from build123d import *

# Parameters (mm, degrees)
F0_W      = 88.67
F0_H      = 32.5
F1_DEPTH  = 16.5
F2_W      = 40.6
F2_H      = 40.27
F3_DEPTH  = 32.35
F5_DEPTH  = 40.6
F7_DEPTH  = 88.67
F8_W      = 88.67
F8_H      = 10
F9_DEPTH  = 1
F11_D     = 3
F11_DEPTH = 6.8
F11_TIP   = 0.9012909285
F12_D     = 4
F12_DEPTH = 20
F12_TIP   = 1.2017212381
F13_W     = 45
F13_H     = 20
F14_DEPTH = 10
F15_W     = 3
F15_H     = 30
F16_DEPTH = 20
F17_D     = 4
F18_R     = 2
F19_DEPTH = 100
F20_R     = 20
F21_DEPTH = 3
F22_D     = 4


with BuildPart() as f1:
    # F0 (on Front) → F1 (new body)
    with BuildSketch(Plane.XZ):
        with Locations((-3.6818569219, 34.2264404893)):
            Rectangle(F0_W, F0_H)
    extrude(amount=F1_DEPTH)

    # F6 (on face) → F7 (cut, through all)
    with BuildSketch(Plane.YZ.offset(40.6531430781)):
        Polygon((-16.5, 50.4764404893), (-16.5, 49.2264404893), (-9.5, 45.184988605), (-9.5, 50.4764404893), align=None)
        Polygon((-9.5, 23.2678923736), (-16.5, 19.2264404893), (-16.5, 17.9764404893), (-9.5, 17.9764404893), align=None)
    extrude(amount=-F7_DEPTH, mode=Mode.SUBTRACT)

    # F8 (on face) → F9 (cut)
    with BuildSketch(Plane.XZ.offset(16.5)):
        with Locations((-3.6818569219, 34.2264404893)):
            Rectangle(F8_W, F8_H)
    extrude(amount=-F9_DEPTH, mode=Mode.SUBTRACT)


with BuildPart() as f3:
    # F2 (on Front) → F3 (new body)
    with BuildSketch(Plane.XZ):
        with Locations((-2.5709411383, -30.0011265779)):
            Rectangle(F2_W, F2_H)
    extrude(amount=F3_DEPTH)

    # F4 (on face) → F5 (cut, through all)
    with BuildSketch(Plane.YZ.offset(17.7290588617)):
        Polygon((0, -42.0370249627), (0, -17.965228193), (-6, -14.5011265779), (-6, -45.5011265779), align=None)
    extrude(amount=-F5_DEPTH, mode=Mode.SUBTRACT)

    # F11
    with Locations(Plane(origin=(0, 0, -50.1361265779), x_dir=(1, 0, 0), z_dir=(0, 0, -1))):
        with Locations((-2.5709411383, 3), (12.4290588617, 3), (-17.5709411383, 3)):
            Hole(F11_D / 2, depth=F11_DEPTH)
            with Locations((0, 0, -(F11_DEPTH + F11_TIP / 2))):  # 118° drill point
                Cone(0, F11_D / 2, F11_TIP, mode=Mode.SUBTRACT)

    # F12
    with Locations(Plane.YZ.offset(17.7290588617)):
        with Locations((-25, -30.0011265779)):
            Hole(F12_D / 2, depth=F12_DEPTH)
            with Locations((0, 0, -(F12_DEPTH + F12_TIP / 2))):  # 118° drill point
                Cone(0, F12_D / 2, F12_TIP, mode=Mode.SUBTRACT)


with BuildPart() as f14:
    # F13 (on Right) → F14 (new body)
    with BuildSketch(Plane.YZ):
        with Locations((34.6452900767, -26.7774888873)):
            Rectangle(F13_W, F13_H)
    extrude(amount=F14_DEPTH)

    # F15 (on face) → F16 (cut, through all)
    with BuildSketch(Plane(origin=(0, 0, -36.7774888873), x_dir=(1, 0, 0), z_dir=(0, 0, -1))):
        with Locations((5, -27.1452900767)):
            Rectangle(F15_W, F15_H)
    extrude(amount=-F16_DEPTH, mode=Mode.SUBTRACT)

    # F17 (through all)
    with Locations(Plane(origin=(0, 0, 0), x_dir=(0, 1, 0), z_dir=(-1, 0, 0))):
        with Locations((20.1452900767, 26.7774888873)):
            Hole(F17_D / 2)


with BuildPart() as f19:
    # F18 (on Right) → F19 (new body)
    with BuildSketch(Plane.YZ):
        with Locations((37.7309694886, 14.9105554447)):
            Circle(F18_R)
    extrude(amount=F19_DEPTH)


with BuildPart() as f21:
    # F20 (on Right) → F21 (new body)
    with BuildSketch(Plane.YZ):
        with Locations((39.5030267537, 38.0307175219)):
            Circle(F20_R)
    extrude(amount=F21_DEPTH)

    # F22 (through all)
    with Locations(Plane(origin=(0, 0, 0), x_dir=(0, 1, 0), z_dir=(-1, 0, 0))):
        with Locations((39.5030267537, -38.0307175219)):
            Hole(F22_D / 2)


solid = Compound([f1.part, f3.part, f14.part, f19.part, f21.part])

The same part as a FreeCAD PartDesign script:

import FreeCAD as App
import Part
import Sketcher

V = App.Vector
Q = App.Units.Quantity

doc = App.newDocument("Part")
body = doc.addObject("PartDesign::Body", "Body")

# Sketch on XZ plane
sketch1 = body.newObject("Sketcher::SketchObject", "Sketch")
sketch1.AttachmentSupport = (doc.getObject("XZ_Plane"), [""])
sketch1.MapMode = "FlatFace"
sketch1.addGeometry(Part.LineSegment(V(-48, 50, 0), V(-48, 18, 0)), False)
sketch1.addGeometry(Part.LineSegment(V(-48, 18, 0), V(41, 18, 0)), False)
sketch1.addGeometry(Part.LineSegment(V(41, 18, 0), V(41, 50, 0)), False)
sketch1.addGeometry(Part.LineSegment(V(41, 50, 0), V(-48, 50, 0)), False)
sketch1.addConstraint(Sketcher.Constraint("Coincident", 0, 2, 1, 1))
sketch1.addConstraint(Sketcher.Constraint("Coincident", 1, 2, 2, 1))
sketch1.addConstraint(Sketcher.Constraint("Coincident", 2, 2, 3, 1))
sketch1.addConstraint(Sketcher.Constraint("Coincident", 3, 2, 0, 1))
sketch1.addConstraint(Sketcher.Constraint("Vertical", 0))
sketch1.addConstraint(Sketcher.Constraint("Horizontal", 1))
sketch1.addConstraint(Sketcher.Constraint("Vertical", 2))
sketch1.addConstraint(Sketcher.Constraint("Horizontal", 3))
sketch1.addConstraint(Sketcher.Constraint("DistanceY", 0, 2, 0, 1, Q("32.5 mm")))
sketch1.addConstraint(Sketcher.Constraint("DistanceX", 1, 1, 1, 2, Q("88.67 mm")))
sketch1.addConstraint(Sketcher.Constraint("DistanceY", -1, 1, 0, 2, Q("17.97644 mm")))
sketch1.addConstraint(Sketcher.Constraint("DistanceX", 0, 2, -1, 1, Q("48.016857 mm")))
pad1 = body.newObject("PartDesign::Pad", "Pad")
pad1.Profile = sketch1
pad1.Length = 16.5

# Sketch on YZ plane
sketch2 = body.newObject("Sketcher::SketchObject", "Sketch001")
sketch2.AttachmentSupport = (doc.getObject("YZ_Plane"), [""])
sketch2.MapMode = "FlatFace"
sketch2.AttachmentOffset = App.Placement(V(0, 0, 40.653143), App.Rotation())
sketch2.addGeometry(Part.LineSegment(V(-16.5, 50.5, 0), V(-16.5, 49.2, 0)), False)
sketch2.addGeometry(Part.LineSegment(V(-16.5, 49.2, 0), V(-9.5, 45.2, 0)), False)
sketch2.addGeometry(Part.LineSegment(V(-9.5, 45.2, 0), V(-9.5, 50.5, 0)), False)
sketch2.addGeometry(Part.LineSegment(V(-9.5, 50.5, 0), V(-16.5, 50.5, 0)), False)
sketch2.addGeometry(Part.LineSegment(V(-9.5, 23.3, 0), V(-16.5, 19.2, 0)), False)
sketch2.addGeometry(Part.LineSegment(V(-16.5, 19.2, 0), V(-16.5, 18, 0)), False)
sketch2.addGeometry(Part.LineSegment(V(-16.5, 18, 0), V(-9.5, 18, 0)), False)
sketch2.addGeometry(Part.LineSegment(V(-9.5, 18, 0), V(-9.5, 23.3, 0)), False)
sketch2.addConstraint(Sketcher.Constraint("Coincident", 0, 2, 1, 1))
sketch2.addConstraint(Sketcher.Constraint("Coincident", 1, 2, 2, 1))
sketch2.addConstraint(Sketcher.Constraint("Coincident", 2, 2, 3, 1))
sketch2.addConstraint(Sketcher.Constraint("Coincident", 3, 2, 0, 1))
sketch2.addConstraint(Sketcher.Constraint("Coincident", 4, 2, 5, 1))
sketch2.addConstraint(Sketcher.Constraint("Coincident", 5, 2, 6, 1))
sketch2.addConstraint(Sketcher.Constraint("Coincident", 6, 2, 7, 1))
sketch2.addConstraint(Sketcher.Constraint("Coincident", 7, 2, 4, 1))
sketch2.addConstraint(Sketcher.Constraint("Vertical", 0))
sketch2.addConstraint(Sketcher.Constraint("Vertical", 2))
sketch2.addConstraint(Sketcher.Constraint("Horizontal", 3))
sketch2.addConstraint(Sketcher.Constraint("Vertical", 5))
sketch2.addConstraint(Sketcher.Constraint("Horizontal", 6))
sketch2.addConstraint(Sketcher.Constraint("Vertical", 7))
sketch2.addConstraint(Sketcher.Constraint("Vertical", 3, 2, 4, 2))
sketch2.addConstraint(Sketcher.Constraint("Vertical", 2, 2, 6, 2))
sketch2.addConstraint(Sketcher.Constraint("Equal", 0, 5))
sketch2.addConstraint(Sketcher.Constraint("Equal", 2, 7))
sketch2.addConstraint(Sketcher.Constraint("DistanceX", 3, 2, 3, 1, Q("7 mm")))
sketch2.addConstraint(Sketcher.Constraint("Angle", 1, Q("-30 deg")))
sketch2.addConstraint(Sketcher.Constraint("DistanceY", 4, 2, 0, 2, Q("30 mm")))
sketch2.addConstraint(Sketcher.Constraint("DistanceY", 0, 2, 0, 1, Q("1.25 mm")))
sketch2.addConstraint(Sketcher.Constraint("DistanceX", 0, 2, -1, 1, Q("16.5 mm")))
sketch2.addConstraint(Sketcher.Constraint("DistanceY", -1, 1, 0, 2, Q("49.22644 mm")))
pocket1 = body.newObject("PartDesign::Pocket", "Pocket")
pocket1.Profile = sketch2
pocket1.Type = "ThroughAll"

# Sketch on XZ plane
sketch3 = body.newObject("Sketcher::SketchObject", "Sketch002")
sketch3.AttachmentSupport = (doc.getObject("XZ_Plane"), [""])
sketch3.MapMode = "FlatFace"
sketch3.AttachmentOffset = App.Placement(V(0, 0, 16.5), App.Rotation())
sketch3.addGeometry(Part.LineSegment(V(-48, 39, 0), V(-48, 29, 0)), False)
sketch3.addGeometry(Part.LineSegment(V(-48, 29, 0), V(41, 29, 0)), False)
sketch3.addGeometry(Part.LineSegment(V(41, 29, 0), V(41, 39, 0)), False)
sketch3.addGeometry(Part.LineSegment(V(41, 39, 0), V(-48, 39, 0)), False)
sketch3.addConstraint(Sketcher.Constraint("Coincident", 0, 2, 1, 1))
sketch3.addConstraint(Sketcher.Constraint("Coincident", 1, 2, 2, 1))
sketch3.addConstraint(Sketcher.Constraint("Coincident", 2, 2, 3, 1))
sketch3.addConstraint(Sketcher.Constraint("Coincident", 3, 2, 0, 1))
sketch3.addConstraint(Sketcher.Constraint("Vertical", 0))
sketch3.addConstraint(Sketcher.Constraint("Horizontal", 1))
sketch3.addConstraint(Sketcher.Constraint("Vertical", 2))
sketch3.addConstraint(Sketcher.Constraint("Horizontal", 3))
sketch3.addConstraint(Sketcher.Constraint("DistanceY", 0, 2, 0, 1, Q("10 mm")))
sketch3.addConstraint(Sketcher.Constraint("DistanceX", 1, 1, 1, 2, Q("88.67 mm")))
sketch3.addConstraint(Sketcher.Constraint("DistanceY", -1, 1, 0, 2, Q("29.22644 mm")))
sketch3.addConstraint(Sketcher.Constraint("DistanceX", 0, 2, -1, 1, Q("48.016857 mm")))
pocket2 = body.newObject("PartDesign::Pocket", "Pocket001")
pocket2.Profile = sketch3
pocket2.Length = 1
body2 = doc.addObject("PartDesign::Body", "Body001")

# Sketch on XZ plane
sketch4 = body2.newObject("Sketcher::SketchObject", "Sketch003")
sketch4.AttachmentSupport = (doc.getObject("XZ_Plane001"), [""])
sketch4.MapMode = "FlatFace"
sketch4.addGeometry(Part.LineSegment(V(-23, -10, 0), V(-23, -50, 0)), False)
sketch4.addGeometry(Part.LineSegment(V(-23, -50, 0), V(18, -50, 0)), False)
sketch4.addGeometry(Part.LineSegment(V(18, -50, 0), V(18, -10, 0)), False)
sketch4.addGeometry(Part.LineSegment(V(18, -10, 0), V(-23, -10, 0)), False)
sketch4.addConstraint(Sketcher.Constraint("Coincident", 0, 2, 1, 1))
sketch4.addConstraint(Sketcher.Constraint("Coincident", 1, 2, 2, 1))
sketch4.addConstraint(Sketcher.Constraint("Coincident", 2, 2, 3, 1))
sketch4.addConstraint(Sketcher.Constraint("Coincident", 3, 2, 0, 1))
sketch4.addConstraint(Sketcher.Constraint("Vertical", 0))
sketch4.addConstraint(Sketcher.Constraint("Horizontal", 1))
sketch4.addConstraint(Sketcher.Constraint("Vertical", 2))
sketch4.addConstraint(Sketcher.Constraint("Horizontal", 3))
sketch4.addConstraint(Sketcher.Constraint("DistanceX", 1, 1, 1, 2, Q("40.6 mm")))
sketch4.addConstraint(Sketcher.Constraint("DistanceY", 0, 2, 0, 1, Q("40.27 mm")))
sketch4.addConstraint(Sketcher.Constraint("DistanceX", 0, 2, -1, 1, Q("22.870941 mm")))
sketch4.addConstraint(Sketcher.Constraint("DistanceY", 0, 2, -1, 1, Q("50.136127 mm")))
pad2 = body2.newObject("PartDesign::Pad", "Pad001")
pad2.Profile = sketch4
pad2.Length = 32.35

# Sketch on YZ plane
sketch5 = body2.newObject("Sketcher::SketchObject", "Sketch004")
sketch5.AttachmentSupport = (doc.getObject("YZ_Plane001"), [""])
sketch5.MapMode = "FlatFace"
sketch5.AttachmentOffset = App.Placement(V(0, 0, 17.729059), App.Rotation())
sketch5.addGeometry(Part.LineSegment(V(0, -42, 0), V(0, -18, 0)), False)
sketch5.addGeometry(Part.LineSegment(V(0, -18, 0), V(-6, -15, 0)), False)
sketch5.addGeometry(Part.LineSegment(V(-6, -15, 0), V(-6, -46, 0)), False)
sketch5.addGeometry(Part.LineSegment(V(-6, -46, 0), V(0, -42, 0)), False)
sketch5.addConstraint(Sketcher.Constraint("Coincident", 0, 2, 1, 1))
sketch5.addConstraint(Sketcher.Constraint("Coincident", 1, 2, 2, 1))
sketch5.addConstraint(Sketcher.Constraint("Coincident", 2, 2, 3, 1))
sketch5.addConstraint(Sketcher.Constraint("Coincident", 3, 2, 0, 1))
sketch5.addConstraint(Sketcher.Constraint("Vertical", 0))
sketch5.addConstraint(Sketcher.Constraint("Vertical", 2))
sketch5.addConstraint(Sketcher.Constraint("PointOnObject", 0, 2, -2))
sketch5.addConstraint(Sketcher.Constraint("Equal", 1, 3))
sketch5.addConstraint(Sketcher.Constraint("DistanceY", 2, 2, 2, 1, Q("31 mm")))
sketch5.addConstraint(Sketcher.Constraint("Angle", 1, Q("150 deg")))
sketch5.addConstraint(Sketcher.Constraint("DistanceX", 1, 2, -1, 1, Q("6 mm")))
sketch5.addConstraint(Sketcher.Constraint("DistanceY", 0, 2, -1, 1, Q("17.965228 mm")))
pocket3 = body2.newObject("PartDesign::Pocket", "Pocket002")
pocket3.Profile = sketch5
pocket3.Type = "ThroughAll"

# Sketch on XY plane
sketch6 = body2.newObject("Sketcher::SketchObject", "Sketch005")
sketch6.AttachmentSupport = (doc.getObject("XY_Plane001"), [""])
sketch6.MapMode = "FlatFace"
sketch6.AttachmentOffset = App.Placement(V(0, 0, -50.136127), App.Rotation())
sketch6.addGeometry(Part.Circle(V(-2.6, -3, 0), V(0, 0, 1), 1.5), False)
sketch6.addGeometry(Part.Circle(V(12.4, -3, 0), V(0, 0, 1), 1.5), False)
sketch6.addGeometry(Part.Circle(V(-17.6, -3, 0), V(0, 0, 1), 1.5), False)
sketch6.addConstraint(Sketcher.Constraint("Equal", 0, 1))
sketch6.addConstraint(Sketcher.Constraint("Equal", 1, 2))
sketch6.addConstraint(Sketcher.Constraint("Horizontal", 0, 3, 1, 3))
sketch6.addConstraint(Sketcher.Constraint("Horizontal", 1, 3, 2, 3))
sketch6.addConstraint(Sketcher.Constraint("Diameter", 0, Q("3 mm")))
sketch6.addConstraint(Sketcher.Constraint("DistanceY", 0, 3, -1, 1, Q("3 mm")))
sketch6.addConstraint(Sketcher.Constraint("DistanceX", 0, 3, 1, 3, Q("15 mm")))
sketch6.addConstraint(Sketcher.Constraint("DistanceX", 2, 3, 0, 3, Q("15 mm")))
sketch6.addConstraint(Sketcher.Constraint("DistanceX", 0, 3, -1, 1, Q("2.570941 mm")))
doc.recompute()
hole = body2.newObject("PartDesign::Hole", "Hole")
hole.Profile = sketch6
hole.ThreadType = "None"
hole.Diameter = 3
hole.DepthType = "Dimension"
hole.Depth = 6.8
hole.DrillPoint = "Angled"
hole.DrillPointAngle = 118
hole.Reversed = True

# Sketch on YZ plane
sketch7 = body2.newObject("Sketcher::SketchObject", "Sketch006")
sketch7.AttachmentSupport = (doc.getObject("YZ_Plane001"), [""])
sketch7.MapMode = "FlatFace"
sketch7.AttachmentOffset = App.Placement(V(0, 0, 17.729059), App.Rotation())
sketch7.addGeometry(Part.Circle(V(-25, -30, 0), V(0, 0, 1), 2), False)
sketch7.addConstraint(Sketcher.Constraint("Diameter", 0, Q("4 mm")))
sketch7.addConstraint(Sketcher.Constraint("DistanceX", 0, 3, -1, 1, Q("25 mm")))
sketch7.addConstraint(Sketcher.Constraint("DistanceY", 0, 3, -1, 1, Q("30.001127 mm")))
doc.recompute()
hole2 = body2.newObject("PartDesign::Hole", "Hole001")
hole2.Profile = sketch7
hole2.ThreadType = "None"
hole2.Diameter = 4
hole2.DepthType = "Dimension"
hole2.Depth = 20
hole2.DrillPoint = "Angled"
hole2.DrillPointAngle = 118
body3 = doc.addObject("PartDesign::Body", "Body002")

# Sketch on YZ plane
sketch8 = body3.newObject("Sketcher::SketchObject", "Sketch007")
sketch8.AttachmentSupport = (doc.getObject("YZ_Plane002"), [""])
sketch8.MapMode = "FlatFace"
sketch8.addGeometry(Part.LineSegment(V(12, -17, 0), V(12, -37, 0)), False)
sketch8.addGeometry(Part.LineSegment(V(12, -37, 0), V(57, -37, 0)), False)
sketch8.addGeometry(Part.LineSegment(V(57, -37, 0), V(57, -17, 0)), False)
sketch8.addGeometry(Part.LineSegment(V(57, -17, 0), V(12, -17, 0)), False)
sketch8.addConstraint(Sketcher.Constraint("Coincident", 0, 2, 1, 1))
sketch8.addConstraint(Sketcher.Constraint("Coincident", 1, 2, 2, 1))
sketch8.addConstraint(Sketcher.Constraint("Coincident", 2, 2, 3, 1))
sketch8.addConstraint(Sketcher.Constraint("Coincident", 3, 2, 0, 1))
sketch8.addConstraint(Sketcher.Constraint("Vertical", 0))
sketch8.addConstraint(Sketcher.Constraint("Horizontal", 1))
sketch8.addConstraint(Sketcher.Constraint("Vertical", 2))
sketch8.addConstraint(Sketcher.Constraint("Horizontal", 3))
sketch8.addConstraint(Sketcher.Constraint("DistanceX", 1, 1, 1, 2, Q("45 mm")))
sketch8.addConstraint(Sketcher.Constraint("DistanceY", 0, 2, 0, 1, Q("20 mm")))
sketch8.addConstraint(Sketcher.Constraint("DistanceX", -1, 1, 0, 2, Q("12.14529 mm")))
sketch8.addConstraint(Sketcher.Constraint("DistanceY", 0, 2, -1, 1, Q("36.777489 mm")))
pad3 = body3.newObject("PartDesign::Pad", "Pad002")
pad3.Profile = sketch8
pad3.Length = 10

# Sketch on XY plane
sketch9 = body3.newObject("Sketcher::SketchObject", "Sketch008")
sketch9.AttachmentSupport = (doc.getObject("XY_Plane002"), [""])
sketch9.MapMode = "FlatFace"
sketch9.AttachmentOffset = App.Placement(V(0, 0, -36.777489), App.Rotation())
sketch9.addGeometry(Part.LineSegment(V(3.5, 12.1, 0), V(3.5, 42.1, 0)), False)
sketch9.addGeometry(Part.LineSegment(V(3.5, 42.1, 0), V(6.5, 42.1, 0)), False)
sketch9.addGeometry(Part.LineSegment(V(6.5, 42.1, 0), V(6.5, 12.1, 0)), False)
sketch9.addGeometry(Part.LineSegment(V(6.5, 12.1, 0), V(3.5, 12.1, 0)), False)
sketch9.addConstraint(Sketcher.Constraint("Coincident", 0, 2, 1, 1))
sketch9.addConstraint(Sketcher.Constraint("Coincident", 1, 2, 2, 1))
sketch9.addConstraint(Sketcher.Constraint("Coincident", 2, 2, 3, 1))
sketch9.addConstraint(Sketcher.Constraint("Coincident", 3, 2, 0, 1))
sketch9.addConstraint(Sketcher.Constraint("Vertical", 0))
sketch9.addConstraint(Sketcher.Constraint("Horizontal", 1))
sketch9.addConstraint(Sketcher.Constraint("Vertical", 2))
sketch9.addConstraint(Sketcher.Constraint("Horizontal", 3))
sketch9.addConstraint(Sketcher.Constraint("DistanceX", 1, 1, 1, 2, Q("3 mm")))
sketch9.addConstraint(Sketcher.Constraint("DistanceY", 0, 1, 0, 2, Q("30 mm")))
sketch9.addConstraint(Sketcher.Constraint("DistanceX", -1, 1, 0, 2, Q("3.5 mm")))
sketch9.addConstraint(Sketcher.Constraint("DistanceY", -1, 1, 0, 2, Q("42.14529 mm")))
pocket4 = body3.newObject("PartDesign::Pocket", "Pocket003")
pocket4.Profile = sketch9
pocket4.Type = "ThroughAll"
pocket4.Reversed = True

# Sketch on YZ plane
sketch10 = body3.newObject("Sketcher::SketchObject", "Sketch009")
sketch10.AttachmentSupport = (doc.getObject("YZ_Plane002"), [""])
sketch10.MapMode = "FlatFace"
sketch10.addGeometry(Part.Circle(V(20.1, -26.8, 0), V(0, 0, 1), 2), False)
sketch10.addConstraint(Sketcher.Constraint("Diameter", 0, Q("4 mm")))
sketch10.addConstraint(Sketcher.Constraint("DistanceX", -1, 1, 0, 3, Q("20.14529 mm")))
sketch10.addConstraint(Sketcher.Constraint("DistanceY", 0, 3, -1, 1, Q("26.777489 mm")))
doc.recompute()
hole3 = body3.newObject("PartDesign::Hole", "Hole002")
hole3.Profile = sketch10
hole3.ThreadType = "None"
hole3.Diameter = 4
hole3.DepthType = "ThroughAll"
hole3.Reversed = True
body4 = doc.addObject("PartDesign::Body", "Body003")

# Sketch on YZ plane
sketch11 = body4.newObject("Sketcher::SketchObject", "Sketch010")
sketch11.AttachmentSupport = (doc.getObject("YZ_Plane003"), [""])
sketch11.MapMode = "FlatFace"
sketch11.addGeometry(Part.Circle(V(37.7, 14.9, 0), V(0, 0, 1), 2), False)
sketch11.addConstraint(Sketcher.Constraint("Diameter", 0, Q("4 mm")))
sketch11.addConstraint(Sketcher.Constraint("DistanceX", -1, 1, 0, 3, Q("37.730969 mm")))
sketch11.addConstraint(Sketcher.Constraint("DistanceY", -1, 1, 0, 3, Q("14.910555 mm")))
pad4 = body4.newObject("PartDesign::Pad", "Pad003")
pad4.Profile = sketch11
pad4.Length = 100
body5 = doc.addObject("PartDesign::Body", "Body004")

# Sketch on YZ plane
sketch12 = body5.newObject("Sketcher::SketchObject", "Sketch011")
sketch12.AttachmentSupport = (doc.getObject("YZ_Plane004"), [""])
sketch12.MapMode = "FlatFace"
sketch12.addGeometry(Part.Circle(V(40, 38, 0), V(0, 0, 1), 20), False)
sketch12.addConstraint(Sketcher.Constraint("Diameter", 0, Q("40 mm")))
sketch12.addConstraint(Sketcher.Constraint("DistanceX", -1, 1, 0, 3, Q("39.503027 mm")))
sketch12.addConstraint(Sketcher.Constraint("DistanceY", -1, 1, 0, 3, Q("38.030718 mm")))
pad5 = body5.newObject("PartDesign::Pad", "Pad004")
pad5.Profile = sketch12
pad5.Length = 3

# Sketch on YZ plane
sketch13 = body5.newObject("Sketcher::SketchObject", "Sketch012")
sketch13.AttachmentSupport = (doc.getObject("YZ_Plane004"), [""])
sketch13.MapMode = "FlatFace"
sketch13.addGeometry(Part.Circle(V(39.5, 38, 0), V(0, 0, 1), 2), False)
sketch13.addConstraint(Sketcher.Constraint("Diameter", 0, Q("4 mm")))
sketch13.addConstraint(Sketcher.Constraint("DistanceX", -1, 1, 0, 3, Q("39.503027 mm")))
sketch13.addConstraint(Sketcher.Constraint("DistanceY", -1, 1, 0, 3, Q("38.030718 mm")))
doc.recompute()
hole4 = body5.newObject("PartDesign::Hole", "Hole003")
hole4.Profile = sketch13
hole4.ThreadType = "None"
hole4.Diameter = 4
hole4.DepthType = "ThroughAll"
hole4.Reversed = True

doc.recompute()
